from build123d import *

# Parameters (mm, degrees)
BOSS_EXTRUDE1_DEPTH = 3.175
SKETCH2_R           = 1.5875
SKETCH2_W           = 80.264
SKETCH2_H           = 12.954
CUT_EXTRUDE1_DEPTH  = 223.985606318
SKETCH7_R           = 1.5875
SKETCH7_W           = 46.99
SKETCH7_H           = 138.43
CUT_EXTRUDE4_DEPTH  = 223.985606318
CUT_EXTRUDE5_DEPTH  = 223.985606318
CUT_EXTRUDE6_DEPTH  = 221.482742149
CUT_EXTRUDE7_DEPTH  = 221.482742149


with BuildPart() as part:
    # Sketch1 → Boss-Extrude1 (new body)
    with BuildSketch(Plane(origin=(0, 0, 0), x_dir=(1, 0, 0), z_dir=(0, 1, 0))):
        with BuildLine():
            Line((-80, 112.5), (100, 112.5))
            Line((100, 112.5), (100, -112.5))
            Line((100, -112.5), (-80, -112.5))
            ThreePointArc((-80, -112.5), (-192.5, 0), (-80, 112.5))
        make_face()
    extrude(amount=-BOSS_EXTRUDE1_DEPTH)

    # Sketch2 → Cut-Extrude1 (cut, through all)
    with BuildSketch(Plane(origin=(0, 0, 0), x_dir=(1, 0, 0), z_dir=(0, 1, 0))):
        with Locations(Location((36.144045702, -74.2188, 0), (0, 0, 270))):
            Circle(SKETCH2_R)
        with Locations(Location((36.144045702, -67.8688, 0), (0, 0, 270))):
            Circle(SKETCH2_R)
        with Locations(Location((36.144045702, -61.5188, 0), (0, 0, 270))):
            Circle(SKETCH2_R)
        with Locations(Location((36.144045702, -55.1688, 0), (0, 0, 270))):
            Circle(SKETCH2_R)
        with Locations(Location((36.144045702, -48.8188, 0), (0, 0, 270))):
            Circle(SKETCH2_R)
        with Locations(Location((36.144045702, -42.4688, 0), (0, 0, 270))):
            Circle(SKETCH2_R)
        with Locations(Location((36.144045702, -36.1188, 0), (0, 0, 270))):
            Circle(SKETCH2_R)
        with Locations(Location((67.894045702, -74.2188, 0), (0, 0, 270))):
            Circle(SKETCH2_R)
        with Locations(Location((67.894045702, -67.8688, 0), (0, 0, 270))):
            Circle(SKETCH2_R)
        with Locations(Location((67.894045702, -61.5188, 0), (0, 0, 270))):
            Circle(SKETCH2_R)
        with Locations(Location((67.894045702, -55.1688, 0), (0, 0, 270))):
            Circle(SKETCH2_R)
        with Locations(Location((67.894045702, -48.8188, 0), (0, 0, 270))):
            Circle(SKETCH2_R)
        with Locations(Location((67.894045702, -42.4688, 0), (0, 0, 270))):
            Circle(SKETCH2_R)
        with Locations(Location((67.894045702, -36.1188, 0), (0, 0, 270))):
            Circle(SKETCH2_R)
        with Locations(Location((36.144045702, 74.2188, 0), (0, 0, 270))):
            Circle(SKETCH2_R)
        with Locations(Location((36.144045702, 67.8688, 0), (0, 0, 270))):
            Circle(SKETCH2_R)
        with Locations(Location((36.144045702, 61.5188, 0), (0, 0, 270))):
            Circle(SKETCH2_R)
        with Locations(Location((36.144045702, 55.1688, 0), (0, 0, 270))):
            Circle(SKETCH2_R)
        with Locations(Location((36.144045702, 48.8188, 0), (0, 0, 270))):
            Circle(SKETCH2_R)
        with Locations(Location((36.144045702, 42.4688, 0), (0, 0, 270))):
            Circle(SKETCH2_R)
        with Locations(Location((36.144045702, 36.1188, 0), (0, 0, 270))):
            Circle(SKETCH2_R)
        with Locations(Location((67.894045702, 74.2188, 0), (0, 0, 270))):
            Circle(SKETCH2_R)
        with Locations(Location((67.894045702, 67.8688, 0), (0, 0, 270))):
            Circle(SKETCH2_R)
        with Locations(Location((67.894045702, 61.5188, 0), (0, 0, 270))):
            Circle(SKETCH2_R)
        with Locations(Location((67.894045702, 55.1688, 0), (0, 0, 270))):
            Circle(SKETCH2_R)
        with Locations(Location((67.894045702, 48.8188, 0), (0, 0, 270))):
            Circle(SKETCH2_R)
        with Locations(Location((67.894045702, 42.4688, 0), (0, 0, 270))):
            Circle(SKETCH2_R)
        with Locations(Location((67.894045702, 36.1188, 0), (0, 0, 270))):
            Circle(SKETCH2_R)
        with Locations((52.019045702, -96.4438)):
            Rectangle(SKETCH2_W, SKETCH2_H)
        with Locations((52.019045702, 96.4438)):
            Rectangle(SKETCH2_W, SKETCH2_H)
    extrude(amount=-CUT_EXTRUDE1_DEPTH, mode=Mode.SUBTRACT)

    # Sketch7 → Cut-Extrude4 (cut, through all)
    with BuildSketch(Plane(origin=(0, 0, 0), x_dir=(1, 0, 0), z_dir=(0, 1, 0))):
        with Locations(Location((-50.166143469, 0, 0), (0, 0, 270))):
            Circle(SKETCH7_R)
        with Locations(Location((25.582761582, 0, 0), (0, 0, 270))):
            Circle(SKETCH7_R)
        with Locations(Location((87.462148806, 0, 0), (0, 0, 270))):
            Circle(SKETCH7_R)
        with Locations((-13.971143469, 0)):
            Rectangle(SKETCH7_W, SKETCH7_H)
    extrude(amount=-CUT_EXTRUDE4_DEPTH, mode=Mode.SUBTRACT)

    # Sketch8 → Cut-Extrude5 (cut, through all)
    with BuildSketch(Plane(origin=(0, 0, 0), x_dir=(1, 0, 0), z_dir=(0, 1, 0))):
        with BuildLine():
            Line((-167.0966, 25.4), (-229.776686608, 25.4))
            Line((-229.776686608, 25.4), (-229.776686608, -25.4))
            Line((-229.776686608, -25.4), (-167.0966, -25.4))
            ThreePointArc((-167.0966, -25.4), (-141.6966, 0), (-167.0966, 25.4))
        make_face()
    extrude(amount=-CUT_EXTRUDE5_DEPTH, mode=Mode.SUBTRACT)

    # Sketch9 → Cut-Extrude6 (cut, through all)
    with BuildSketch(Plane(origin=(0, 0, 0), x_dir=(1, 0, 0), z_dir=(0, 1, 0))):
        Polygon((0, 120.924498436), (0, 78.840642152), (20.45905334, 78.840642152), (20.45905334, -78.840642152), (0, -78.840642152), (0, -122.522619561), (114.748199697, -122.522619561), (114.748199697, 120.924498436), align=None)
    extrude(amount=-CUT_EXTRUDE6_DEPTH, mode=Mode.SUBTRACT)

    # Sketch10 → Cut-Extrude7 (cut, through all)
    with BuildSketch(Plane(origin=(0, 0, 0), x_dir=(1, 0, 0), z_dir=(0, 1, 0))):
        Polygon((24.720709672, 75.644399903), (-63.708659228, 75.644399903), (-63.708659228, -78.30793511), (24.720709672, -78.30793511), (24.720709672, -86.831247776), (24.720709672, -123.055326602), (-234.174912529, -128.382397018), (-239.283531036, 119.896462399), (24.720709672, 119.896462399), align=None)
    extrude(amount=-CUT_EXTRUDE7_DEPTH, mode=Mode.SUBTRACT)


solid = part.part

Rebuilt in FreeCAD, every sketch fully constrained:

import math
import FreeCAD as App
import Part
import Sketcher

V = App.Vector
Q = App.Units.Quantity

doc = App.newDocument("Part")
body = doc.addObject("PartDesign::Body", "Body")

# Sketch on XZ plane
sketch1 = body.newObject("Sketcher::SketchObject", "Sketch")
sketch1.AttachmentSupport = (doc.getObject("XZ_Plane"), [""])
sketch1.MapMode = "FlatFace"
sketch1.addGeometry(Part.LineSegment(V(100, -112, 0), V(-80, -112, 0)), False)
sketch1.addGeometry(Part.ArcOfCircle(Part.Circle(V(-80, 0, 0), V(0, 0, 1), 112), math.radians(90), math.radians(270)), False)
sketch1.addGeometry(Part.LineSegment(V(-80, 112, 0), V(100, 112, 0)), False)
sketch1.addGeometry(Part.LineSegment(V(100, 112, 0), V(100, -112, 0)), False)
sketch1.addConstraint(Sketcher.Constraint("Tangent", 0, 2, 1, 2))
sketch1.addConstraint(Sketcher.Constraint("Tangent", 1, 1, 2, 1))
sketch1.addConstraint(Sketcher.Constraint("Coincident", 2, 2, 3, 1))
sketch1.addConstraint(Sketcher.Constraint("Coincident", 3, 2, 0, 1))
sketch1.addConstraint(Sketcher.Constraint("Horizontal", 0))
sketch1.addConstraint(Sketcher.Constraint("Horizontal", 2))
sketch1.addConstraint(Sketcher.Constraint("Vertical", 3))
sketch1.addConstraint(Sketcher.Constraint("PointOnObject", 1, 3, -1))
sketch1.addConstraint(Sketcher.Constraint("Radius", 1, Q("112.5 mm")))
sketch1.addConstraint(Sketcher.Constraint("DistanceX", 0, 2, 0, 1, Q("180 mm")))
sketch1.addConstraint(Sketcher.Constraint("DistanceX", 1, 3, -1, 1, Q("80 mm")))
pad1 = body.newObject("PartDesign::Pad", "Pad")
pad1.Profile = sketch1
pad1.Length = Q("0.125 in")

# Sketch on XZ plane
sketch2 = body.newObject("Sketcher::SketchObject", "Sketch001")
sketch2.AttachmentSupport = (doc.getObject("XZ_Plane"), [""])
sketch2.MapMode = "FlatFace"
sketch2.addGeometry(Part.Circle(V(36.1, 74.2, 0), V(0, 0, 1), 1.6), False)
sketch2.addGeometry(Part.Circle(V(36.1, 67.9, 0), V(0, 0, 1), 1.6), False)
sketch2.addGeometry(Part.Circle(V(36.1, 61.5, 0), V(0, 0, 1), 1.6), False)
sketch2.addGeometry(Part.Circle(V(36.1, 55.2, 0), V(0, 0, 1), 1.6), False)
sketch2.addGeometry(Part.Circle(V(36.1, 48.8, 0), V(0, 0, 1), 1.6), False)
sketch2.addGeometry(Part.Circle(V(36.1, 42.5, 0), V(0, 0, 1), 1.6), False)
sketch2.addGeometry(Part.Circle(V(36.1, 36.1, 0), V(0, 0, 1), 1.6), False)
sketch2.addGeometry(Part.Circle(V(67.9, 74.2, 0), V(0, 0, 1), 1.6), False)
sketch2.addGeometry(Part.Circle(V(67.9, 67.9, 0), V(0, 0, 1), 1.6), False)
sketch2.addGeometry(Part.Circle(V(67.9, 61.5, 0), V(0, 0, 1), 1.6), False)
sketch2.addGeometry(Part.Circle(V(67.9, 55.2, 0), V(0, 0, 1), 1.6), False)
sketch2.addGeometry(Part.Circle(V(67.9, 48.8, 0), V(0, 0, 1), 1.6), False)
sketch2.addGeometry(Part.Circle(V(67.9, 42.5, 0), V(0, 0, 1), 1.6), False)
sketch2.addGeometry(Part.Circle(V(67.9, 36.1, 0), V(0, 0, 1), 1.6), False)
sketch2.addGeometry(Part.Circle(V(36.1, -74.2, 0), V(0, 0, 1), 1.6), False)
sketch2.addGeometry(Part.Circle(V(36.1, -67.9, 0), V(0, 0, 1), 1.6), False)
sketch2.addGeometry(Part.Circle(V(36.1, -61.5, 0), V(0, 0, 1), 1.6), False)
sketch2.addGeometry(Part.Circle(V(36.1, -55.2, 0), V(0, 0, 1), 1.6), False)
sketch2.addGeometry(Part.Circle(V(36.1, -48.8, 0), V(0, 0, 1), 1.6), False)
sketch2.addGeometry(Part.Circle(V(36.1, -42.5, 0), V(0, 0, 1), 1.6), False)
sketch2.addGeometry(Part.Circle(V(36.1, -36.1, 0), V(0, 0, 1), 1.6), False)
sketch2.addGeometry(Part.Circle(V(67.9, -74.2, 0), V(0, 0, 1), 1.6), False)
sketch2.addGeometry(Part.Circle(V(67.9, -67.9, 0), V(0, 0, 1), 1.6), False)
sketch2.addGeometry(Part.Circle(V(67.9, -61.5, 0), V(0, 0, 1), 1.6), False)
sketch2.addGeometry(Part.Circle(V(67.9, -55.2, 0), V(0, 0, 1), 1.6), False)
sketch2.addGeometry(Part.Circle(V(67.9, -48.8, 0), V(0, 0, 1), 1.6), False)
sketch2.addGeometry(Part.Circle(V(67.9, -42.5, 0), V(0, 0, 1), 1.6), False)
sketch2.addGeometry(Part.Circle(V(67.9, -36.1, 0), V(0, 0, 1), 1.6), False)
sketch2.addGeometry(Part.LineSegment(V(11.9, 90, 0), V(11.9, 102.9, 0)), False)
sketch2.addGeometry(Part.LineSegment(V(11.9, 102.9, 0), V(92.2, 102.9, 0)), False)
sketch2.addGeometry(Part.LineSegment(V(92.2, 102.9, 0), V(92.2, 90, 0)), False)
sketch2.addGeometry(Part.LineSegment(V(92.2, 90, 0), V(11.9, 90, 0)), False)
sketch2.addGeometry(Part.LineSegment(V(11.9, -102.9, 0), V(11.9, -90, 0)), False)
sketch2.addGeometry(Part.LineSegment(V(11.9, -90, 0), V(92.2, -90, 0)), False)
sketch2.addGeometry(Part.LineSegment(V(92.2, -90, 0), V(92.2, -102.9, 0)), False)
sketch2.addGeometry(Part.LineSegment(V(92.2, -102.9, 0), V(11.9, -102.9, 0)), False)
sketch2.addConstraint(Sketcher.Constraint("Coincident", 28, 2, 29, 1))
sketch2.addConstraint(Sketcher.Constraint("Coincident", 29, 2, 30, 1))
sketch2.addConstraint(Sketcher.Constraint("Coincident", 30, 2, 31, 1))
sketch2.addConstraint(Sketcher.Constraint("Coincident", 31, 2, 28, 1))
sketch2.addConstraint(Sketcher.Constraint("Coincident", 32, 2, 33, 1))
sketch2.addConstraint(Sketcher.Constraint("Coincident", 33, 2, 34, 1))
sketch2.addConstraint(Sketcher.Constraint("Coincident", 34, 2, 35, 1))
sketch2.addConstraint(Sketcher.Constraint("Coincident", 35, 2, 32, 1))
sketch2.addConstraint(Sketcher.Constraint("Vertical", 28))
sketch2.addConstraint(Sketcher.Constraint("Horizontal", 29))
sketch2.addConstraint(Sketcher.Constraint("Vertical", 30))
sketch2.addConstraint(Sketcher.Constraint("Horizontal", 31))
sketch2.addConstraint(Sketcher.Constraint("Vertical", 32))
sketch2.addConstraint(Sketcher.Constraint("Horizontal", 33))
sketch2.addConstraint(Sketcher.Constraint("Vertical", 34))
sketch2.addConstraint(Sketcher.Constraint("Horizontal", 35))
sketch2.addConstraint(Sketcher.Constraint("Equal", 0, 1))
sketch2.addConstraint(Sketcher.Constraint("Equal", 1, 2))
sketch2.addConstraint(Sketcher.Constraint("Equal", 2, 3))
sketch2.addConstraint(Sketcher.Constraint("Equal", 3, 4))
sketch2.addConstraint(Sketcher.Constraint("Equal", 4, 5))
sketch2.addConstraint(Sketcher.Constraint("Equal", 5, 6))
sketch2.addConstraint(Sketcher.Constraint("Equal", 6, 7))
sketch2.addConstraint(Sketcher.Constraint("Equal", 7, 8))
sketch2.addConstraint(Sketcher.Constraint("Equal", 8, 9))
sketch2.addConstraint(Sketcher.Constraint("Equal", 9, 10))
sketch2.addConstraint(Sketcher.Constraint("Equal", 10, 11))
sketch2.addConstraint(Sketcher.Constraint("Equal", 11, 12))
sketch2.addConstraint(Sketcher.Constraint("Equal", 12, 13))
sketch2.addConstraint(Sketcher.Constraint("Equal", 13, 14))
sketch2.addConstraint(Sketcher.Constraint("Equal", 14, 15))
sketch2.addConstraint(Sketcher.Constraint("Equal", 15, 16))
sketch2.addConstraint(Sketcher.Constraint("Equal", 16, 17))
sketch2.addConstraint(Sketcher.Constraint("Equal", 17, 18))
sketch2.addConstraint(Sketcher.Constraint("Equal", 18, 19))
sketch2.addConstraint(Sketcher.Constraint("Equal", 19, 20))
sketch2.addConstraint(Sketcher.Constraint("Equal", 20, 21))
sketch2.addConstraint(Sketcher.Constraint("Equal", 21, 22))
sketch2.addConstraint(Sketcher.Constraint("Equal", 22, 23))
sketch2.addConstraint(Sketcher.Constraint("Equal", 23, 24))
sketch2.addConstraint(Sketcher.Constraint("Equal", 24, 25))
sketch2.addConstraint(Sketcher.Constraint("Equal", 25, 26))
sketch2.addConstraint(Sketcher.Constraint("Equal", 26, 27))
sketch2.addConstraint(Sketcher.Constraint("Symmetric", 0, 3, 14, 3, -1))
sketch2.addConstraint(Sketcher.Constraint("Symmetric", 1, 3, 15, 3, -1))
sketch2.addConstraint(Sketcher.Constraint("Symmetric", 2, 3, 16, 3, -1))
sketch2.addConstraint(Sketcher.Constraint("Symmetric", 3, 3, 17, 3, -1))
sketch2.addConstraint(Sketcher.Constraint("Symmetric", 4, 3, 18, 3, -1))
sketch2.addConstraint(Sketcher.Constraint("Symmetric", 5, 3, 19, 3, -1))
sketch2.addConstraint(Sketcher.Constraint("Symmetric", 6, 3, 20, 3, -1))
sketch2.addConstraint(Sketcher.Constraint("Symmetric", 7, 3, 21, 3, -1))
sketch2.addConstraint(Sketcher.Constraint("Symmetric", 8, 3, 22, 3, -1))
sketch2.addConstraint(Sketcher.Constraint("Symmetric", 9, 3, 23, 3, -1))
sketch2.addConstraint(Sketcher.Constraint("Symmetric", 10, 3, 24, 3, -1))
sketch2.addConstraint(Sketcher.Constraint("Symmetric", 11, 3, 25, 3, -1))
sketch2.addConstraint(Sketcher.Constraint("Symmetric", 12, 3, 26, 3, -1))
sketch2.addConstraint(Sketcher.Constraint("Symmetric", 13, 3, 27, 3, -1))
sketch2.addConstraint(Sketcher.Constraint("Symmetric", 31, 2, 32, 2, -1))
sketch2.addConstraint(Sketcher.Constraint("Symmetric", 29, 2, 34, 2, -1))
sketch2.addConstraint(Sketcher.Constraint("Horizontal", 0, 3, 7, 3))
sketch2.addConstraint(Sketcher.Constraint("Horizontal", 1, 3, 8, 3))
sketch2.addConstraint(Sketcher.Constraint("Horizontal", 2, 3, 9, 3))
sketch2.addConstraint(Sketcher.Constraint("Horizontal", 3, 3, 10, 3))
sketch2.addConstraint(Sketcher.Constraint("Horizontal", 4, 3, 11, 3))
sketch2.addConstraint(Sketcher.Constraint("Horizontal", 5, 3, 12, 3))
sketch2.addConstraint(Sketcher.Constraint("Horizontal", 6, 3, 13, 3))
sketch2.addConstraint(Sketcher.Constraint("Vertical", 0, 3, 1, 3))
sketch2.addConstraint(Sketcher.Constraint("Vertical", 1, 3, 2, 3))
sketch2.addConstraint(Sketcher.Constraint("Vertical", 2, 3, 3, 3))
sketch2.addConstraint(Sketcher.Constraint("Vertical", 3, 3, 4, 3))
sketch2.addConstraint(Sketcher.Constraint("Vertical", 4, 3, 5, 3))
sketch2.addConstraint(Sketcher.Constraint("Vertical", 5, 3, 6, 3))
sketch2.addConstraint(Sketcher.Constraint("Vertical", 7, 3, 8, 3))
sketch2.addConstraint(Sketcher.Constraint("Vertical", 8, 3, 9, 3))
sketch2.addConstraint(Sketcher.Constraint("Vertical", 9, 3, 10, 3))
sketch2.addConstraint(Sketcher.Constraint("Vertical", 10, 3, 11, 3))
sketch2.addConstraint(Sketcher.Constraint("Vertical", 11, 3, 12, 3))
sketch2.addConstraint(Sketcher.Constraint("Vertical", 12, 3, 13, 3))
sketch2.addConstraint(Sketcher.Constraint("Diameter", 0, Q("0.125 in")))
sketch2.addConstraint(Sketcher.Constraint("DistanceY", 4, 3, 0, 3, Q("1 in")))
sketch2.addConstraint(Sketcher.Constraint("DistanceY", 5, 3, 1, 3, Q("1 in")))
sketch2.addConstraint(Sketcher.Constraint("DistanceY", 6, 3, 2, 3, Q("1 in")))
sketch2.addConstraint(Sketcher.Constraint("DistanceX", 29, 1, 29, 2, Q("3.16 in")))
sketch2.addConstraint(Sketcher.Constraint("DistanceY", 28, 1, 28, 2, Q("0.51 in")))
sketch2.addConstraint(Sketcher.Constraint("DistanceY", 2, 3, 0, 3, Q("0.5 in")))
sketch2.addConstraint(Sketcher.Constraint("DistanceY", 3, 3, 1, 3, Q("0.5 in")))
sketch2.addConstraint(Sketcher.Constraint("DistanceY", 1, 3, 0, 3, Q("0.25 in")))
sketch2.addConstraint(Sketcher.Constraint("DistanceX", 0, 3, 7, 3, Q("1.25 in")))
sketch2.addConstraint(Sketcher.Constraint("DistanceY", 0, 3, 28, 2, Q("1.13 in")))
sketch2.addConstraint(Sketcher.Constraint("DistanceY", -1, 1, 0, 3, Q("2.922 in")))
sketch2.addConstraint(Sketcher.Constraint("DistanceX", 28, 2, 0, 3, Q("0.955 in")))
sketch2.addConstraint(Sketcher.Constraint("DistanceX", -1, 1, 0, 3, Q("36.144046 mm")))
pocket1 = body.newObject("PartDesign::Pocket", "Pocket")
pocket1.Profile = sketch2
pocket1.Type = "ThroughAll"
pocket1.Reversed = True

# Sketch on XZ plane
sketch3 = body.newObject("Sketcher::SketchObject", "Sketch002")
sketch3.AttachmentSupport = (doc.getObject("XZ_Plane"), [""])
sketch3.MapMode = "FlatFace"
sketch3.addGeometry(Part.Circle(V(-50.2, 0, 0), V(0, 0, 1), 1.6), False)
sketch3.addGeometry(Part.Circle(V(25.6, 0, 0), V(0, 0, 1), 1.6), False)
sketch3.addGeometry(Part.Circle(V(87.5, 0, 0), V(0, 0, 1), 1.6), False)
sketch3.addGeometry(Part.LineSegment(V(-37.5, -69.2, 0), V(-37.5, 69.2, 0)), False)
sketch3.addGeometry(Part.LineSegment(V(-37.5, 69.2, 0), V(9.5, 69.2, 0)), False)
sketch3.addGeometry(Part.LineSegment(V(9.5, 69.2, 0), V(9.5, -69.2, 0)), False)
sketch3.addGeometry(Part.LineSegment(V(9.5, -69.2, 0), V(-37.5, -69.2, 0)), False)
sketch3.addConstraint(Sketcher.Constraint("Coincident", 3, 2, 4, 1))
sketch3.addConstraint(Sketcher.Constraint("Coincident", 4, 2, 5, 1))
sketch3.addConstraint(Sketcher.Constraint("Coincident", 5, 2, 6, 1))
sketch3.addConstraint(Sketcher.Constraint("Coincident", 6, 2, 3, 1))
sketch3.addConstraint(Sketcher.Constraint("Vertical", 3))
sketch3.addConstraint(Sketcher.Constraint("Horizontal", 4))
sketch3.addConstraint(Sketcher.Constraint("Vertical", 5))
sketch3.addConstraint(Sketcher.Constraint("Horizontal", 6))
sketch3.addConstraint(Sketcher.Constraint("Equal", 0, 1))
sketch3.addConstraint(Sketcher.Constraint("Equal", 1, 2))
sketch3.addConstraint(Sketcher.Constraint("PointOnObject", 0, 3, -1))
sketch3.addConstraint(Sketcher.Constraint("PointOnObject", 1, 3, -1))
sketch3.addConstraint(Sketcher.Constraint("PointOnObject", 2, 3, -1))
sketch3.addConstraint(Sketcher.Constraint("Diameter", 0, Q("0.125 in")))
sketch3.addConstraint(Sketcher.Constraint("DistanceX", 4, 1, 4, 2, Q("1.85 in")))
sketch3.addConstraint(Sketcher.Constraint("DistanceY", 3, 1, 3, 2, Q("5.45 in")))
sketch3.addConstraint(Sketcher.Constraint("DistanceX", 0, 3, 3, 2, Q("0.5 in")))
sketch3.addConstraint(Sketcher.Constraint("DistanceY", -1, 1, 3, 2, Q("2.725 in")))
sketch3.addConstraint(Sketcher.Constraint("DistanceX", -1, 1, 1, 3, Q("25.582762 mm")))
sketch3.addConstraint(Sketcher.Constraint("DistanceX", -1, 1, 2, 3, Q("87.462149 mm")))
sketch3.addConstraint(Sketcher.Constraint("DistanceX", 0, 3, -1, 1, Q("50.166143 mm")))
pocket2 = body.newObject("PartDesign::Pocket", "Pocket001")
pocket2.Profile = sketch3
pocket2.Type = "ThroughAll"
pocket2.Reversed = True

# Sketch on XZ plane
sketch4 = body.newObject("Sketcher::SketchObject", "Sketch003")
sketch4.AttachmentSupport = (doc.getObject("XZ_Plane"), [""])
sketch4.MapMode = "FlatFace"
sketch4.addGeometry(Part.LineSegment(V(-167, -25, 0), V(-230, -25, 0)), False)
sketch4.addGeometry(Part.LineSegment(V(-230, -25, 0), V(-230, 25, 0)), False)
sketch4.addGeometry(Part.LineSegment(V(-230, 25, 0), V(-167, 25, 0)), False)
sketch4.addGeometry(Part.ArcOfCircle(Part.Circle(V(-167, 0, 0), V(0, 0, 1), 25), math.radians(-90), math.radians(90)), False)
sketch4.addConstraint(Sketcher.Constraint("Coincident", 0, 2, 1, 1))
sketch4.addConstraint(Sketcher.Constraint("Coincident", 1, 2, 2, 1))
sketch4.addConstraint(Sketcher.Constraint("Tangent", 2, 2, 3, 2))
sketch4.addConstraint(Sketcher.Constraint("Tangent", 3, 1, 0, 1))
sketch4.addConstraint(Sketcher.Constraint("Horizontal", 0))
sketch4.addConstraint(Sketcher.Constraint("Vertical", 1))
sketch4.addConstraint(Sketcher.Constraint("Horizontal", 2))
sketch4.addConstraint(Sketcher.Constraint("PointOnObject", 3, 3, -1))
sketch4.addConstraint(Sketcher.Constraint("Radius", 3, Q("1 in")))
sketch4.addConstraint(Sketcher.Constraint("DistanceX", 3, 3, -1, 1, Q("167.0966 mm")))
sketch4.addConstraint(Sketcher.Constraint("DistanceX", 0, 2, 0, 1, Q("62.680087 mm")))
pocket3 = body.newObject("PartDesign::Pocket", "Pocket002")
pocket3.Profile = sketch4
pocket3.Type = "ThroughAll"
pocket3.Reversed = True

# Sketch on XZ plane
sketch5 = body.newObject("Sketcher::SketchObject", "Sketch004")
sketch5.AttachmentSupport = (doc.getObject("XZ_Plane"), [""])
sketch5.MapMode = "FlatFace"
sketch5.addGeometry(Part.LineSegment(V(0, -121, 0), V(0, -79, 0)), False)
sketch5.addGeometry(Part.LineSegment(V(0, -79, 0), V(20, -79, 0)), False)
sketch5.addGeometry(Part.LineSegment(V(20, -79, 0), V(20, 79, 0)), False)
sketch5.addGeometry(Part.LineSegment(V(20, 79, 0), V(0, 79, 0)), False)
sketch5.addGeometry(Part.LineSegment(V(0, 79, 0), V(0, 123, 0)), False)
sketch5.addGeometry(Part.LineSegment(V(0, 123, 0), V(115, 123, 0)), False)
sketch5.addGeometry(Part.LineSegment(V(115, 123, 0), V(115, -121, 0)), False)
sketch5.addGeometry(Part.LineSegment(V(115, -121, 0), V(0, -121, 0)), False)
sketch5.addConstraint(Sketcher.Constraint("Coincident", 0, 2, 1, 1))
sketch5.addConstraint(Sketcher.Constraint("Coincident", 1, 2, 2, 1))
sketch5.addConstraint(Sketcher.Constraint("Coincident", 2, 2, 3, 1))
sketch5.addConstraint(Sketcher.Constraint("Coincident", 3, 2, 4, 1))
sketch5.addConstraint(Sketcher.Constraint("Coincident", 4, 2, 5, 1))
sketch5.addConstraint(Sketcher.Constraint("Coincident", 5, 2, 6, 1))
sketch5.addConstraint(Sketcher.Constraint("Coincident", 6, 2, 7, 1))
sketch5.addConstraint(Sketcher.Constraint("Coincident", 7, 2, 0, 1))
sketch5.addConstraint(Sketcher.Constraint("Vertical", 0))
sketch5.addConstraint(Sketcher.Constraint("Horizontal", 1))
sketch5.addConstraint(Sketcher.Constraint("Vertical", 2))
sketch5.addConstraint(Sketcher.Constraint("Horizontal", 3))
sketch5.addConstraint(Sketcher.Constraint("Vertical", 4))
sketch5.addConstraint(Sketcher.Constraint("Horizontal", 5))
sketch5.addConstraint(Sketcher.Constraint("Vertical", 6))
sketch5.addConstraint(Sketcher.Constraint("Horizontal", 7))
sketch5.addConstraint(Sketcher.Constraint("Symmetric", 0, 2, 3, 2, -1, 1))
sketch5.addConstraint(Sketcher.Constraint("PointOnObject", 0, 2, -2))
sketch5.addConstraint(Sketcher.Constraint("DistanceX", 5, 1, 5, 2, Q("114.7482 mm")))
sketch5.addConstraint(Sketcher.Constraint("DistanceY", 6, 2, -1, 1, Q("120.924498 mm")))
sketch5.addConstraint(Sketcher.Constraint("DistanceX", 1, 1, 1, 2, Q("20.459053 mm")))
sketch5.addConstraint(Sketcher.Constraint("DistanceY", 0, 1, 0, 2, Q("42.083856 mm")))
sketch5.addConstraint(Sketcher.Constraint("DistanceY", 4, 1, 4, 2, Q("43.681977 mm")))
pocket4 = body.newObject("PartDesign::Pocket", "Pocket003")
pocket4.Profile = sketch5
pocket4.Type = "ThroughAll"
pocket4.Reversed = True

# Sketch on XZ plane
sketch6 = body.newObject("Sketcher::SketchObject", "Sketch005")
sketch6.AttachmentSupport = (doc.getObject("XZ_Plane"), [""])
sketch6.MapMode = "FlatFace"
sketch6.addGeometry(Part.LineSegment(V(-64, -76, 0), V(25, -76, 0)), False)
sketch6.addGeometry(Part.LineSegment(V(25, -76, 0), V(25, -120, 0)), False)
sketch6.addGeometry(Part.LineSegment(V(25, -120, 0), V(-239, -120, 0)), False)
sketch6.addGeometry(Part.LineSegment(V(-239, -120, 0), V(-234, 128, 0)), False)
sketch6.addGeometry(Part.LineSegment(V(-234, 128, 0), V(25, 123, 0)), False)
sketch6.addGeometry(Part.LineSegment(V(25, 123, 0), V(25, 78, 0)), False)
sketch6.addGeometry(Part.LineSegment(V(25, 78, 0), V(-64, 78, 0)), False)
sketch6.addGeometry(Part.LineSegment(V(-64, 78, 0), V(-64, -76, 0)), False)
sketch6.addConstraint(Sketcher.Constraint("Coincident", 0, 2, 1, 1))
sketch6.addConstraint(Sketcher.Constraint("Coincident", 1, 2, 2, 1))
sketch6.addConstraint(Sketcher.Constraint("Coincident", 2, 2, 3, 1))
sketch6.addConstraint(Sketcher.Constraint("Coincident", 3, 2, 4, 1))
sketch6.addConstraint(Sketcher.Constraint("Coincident", 4, 2, 5, 1))
sketch6.addConstraint(Sketcher.Constraint("Coincident", 5, 2, 6, 1))
sketch6.addConstraint(Sketcher.Constraint("Coincident", 6, 2, 7, 1))
sketch6.addConstraint(Sketcher.Constraint("Coincident", 7, 2, 0, 1))
sketch6.addConstraint(Sketcher.Constraint("Horizontal", 0))
sketch6.addConstraint(Sketcher.Constraint("Vertical", 1))
sketch6.addConstraint(Sketcher.Constraint("Horizontal", 2))
sketch6.addConstraint(Sketcher.Constraint("Vertical", 5))
sketch6.addConstraint(Sketcher.Constraint("Horizontal", 6))
sketch6.addConstraint(Sketcher.Constraint("Vertical", 7))
sketch6.addConstraint(Sketcher.Constraint("Perpendicular", 3, 4))
sketch6.addConstraint(Sketcher.Constraint("Vertical", 1, 2, 4, 2))
sketch6.addConstraint(Sketcher.Constraint("DistanceX", 0, 1, 0, 2, Q("88.429369 mm")))
sketch6.addConstraint(Sketcher.Constraint("DistanceX", 2, 2, 2, 1, Q("264.004241 mm")))
sketch6.addConstraint(Sketcher.Constraint("DistanceY", 5, 2, 5, 1, Q("44.747391 mm")))
sketch6.addConstraint(Sketcher.Constraint("DistanceY", 0, 2, -1, 1, Q("75.6444 mm")))
sketch6.addConstraint(Sketcher.Constraint("Distance", 3, Q("248.331412 mm")))
sketch6.addConstraint(Sketcher.Constraint("Distance", 4, Q("258.950422 mm")))
sketch6.addConstraint(Sketcher.Constraint("DistanceY", 1, 2, 1, 1, Q("44.252062 mm")))
sketch6.addConstraint(Sketcher.Constraint("DistanceX", -1, 1, 0, 2, Q("24.72071 mm")))
pocket5 = body.newObject("PartDesign::Pocket", "Pocket004")
pocket5.Profile = sketch6
pocket5.Type = "ThroughAll"
pocket5.Reversed = True

doc.recompute()
